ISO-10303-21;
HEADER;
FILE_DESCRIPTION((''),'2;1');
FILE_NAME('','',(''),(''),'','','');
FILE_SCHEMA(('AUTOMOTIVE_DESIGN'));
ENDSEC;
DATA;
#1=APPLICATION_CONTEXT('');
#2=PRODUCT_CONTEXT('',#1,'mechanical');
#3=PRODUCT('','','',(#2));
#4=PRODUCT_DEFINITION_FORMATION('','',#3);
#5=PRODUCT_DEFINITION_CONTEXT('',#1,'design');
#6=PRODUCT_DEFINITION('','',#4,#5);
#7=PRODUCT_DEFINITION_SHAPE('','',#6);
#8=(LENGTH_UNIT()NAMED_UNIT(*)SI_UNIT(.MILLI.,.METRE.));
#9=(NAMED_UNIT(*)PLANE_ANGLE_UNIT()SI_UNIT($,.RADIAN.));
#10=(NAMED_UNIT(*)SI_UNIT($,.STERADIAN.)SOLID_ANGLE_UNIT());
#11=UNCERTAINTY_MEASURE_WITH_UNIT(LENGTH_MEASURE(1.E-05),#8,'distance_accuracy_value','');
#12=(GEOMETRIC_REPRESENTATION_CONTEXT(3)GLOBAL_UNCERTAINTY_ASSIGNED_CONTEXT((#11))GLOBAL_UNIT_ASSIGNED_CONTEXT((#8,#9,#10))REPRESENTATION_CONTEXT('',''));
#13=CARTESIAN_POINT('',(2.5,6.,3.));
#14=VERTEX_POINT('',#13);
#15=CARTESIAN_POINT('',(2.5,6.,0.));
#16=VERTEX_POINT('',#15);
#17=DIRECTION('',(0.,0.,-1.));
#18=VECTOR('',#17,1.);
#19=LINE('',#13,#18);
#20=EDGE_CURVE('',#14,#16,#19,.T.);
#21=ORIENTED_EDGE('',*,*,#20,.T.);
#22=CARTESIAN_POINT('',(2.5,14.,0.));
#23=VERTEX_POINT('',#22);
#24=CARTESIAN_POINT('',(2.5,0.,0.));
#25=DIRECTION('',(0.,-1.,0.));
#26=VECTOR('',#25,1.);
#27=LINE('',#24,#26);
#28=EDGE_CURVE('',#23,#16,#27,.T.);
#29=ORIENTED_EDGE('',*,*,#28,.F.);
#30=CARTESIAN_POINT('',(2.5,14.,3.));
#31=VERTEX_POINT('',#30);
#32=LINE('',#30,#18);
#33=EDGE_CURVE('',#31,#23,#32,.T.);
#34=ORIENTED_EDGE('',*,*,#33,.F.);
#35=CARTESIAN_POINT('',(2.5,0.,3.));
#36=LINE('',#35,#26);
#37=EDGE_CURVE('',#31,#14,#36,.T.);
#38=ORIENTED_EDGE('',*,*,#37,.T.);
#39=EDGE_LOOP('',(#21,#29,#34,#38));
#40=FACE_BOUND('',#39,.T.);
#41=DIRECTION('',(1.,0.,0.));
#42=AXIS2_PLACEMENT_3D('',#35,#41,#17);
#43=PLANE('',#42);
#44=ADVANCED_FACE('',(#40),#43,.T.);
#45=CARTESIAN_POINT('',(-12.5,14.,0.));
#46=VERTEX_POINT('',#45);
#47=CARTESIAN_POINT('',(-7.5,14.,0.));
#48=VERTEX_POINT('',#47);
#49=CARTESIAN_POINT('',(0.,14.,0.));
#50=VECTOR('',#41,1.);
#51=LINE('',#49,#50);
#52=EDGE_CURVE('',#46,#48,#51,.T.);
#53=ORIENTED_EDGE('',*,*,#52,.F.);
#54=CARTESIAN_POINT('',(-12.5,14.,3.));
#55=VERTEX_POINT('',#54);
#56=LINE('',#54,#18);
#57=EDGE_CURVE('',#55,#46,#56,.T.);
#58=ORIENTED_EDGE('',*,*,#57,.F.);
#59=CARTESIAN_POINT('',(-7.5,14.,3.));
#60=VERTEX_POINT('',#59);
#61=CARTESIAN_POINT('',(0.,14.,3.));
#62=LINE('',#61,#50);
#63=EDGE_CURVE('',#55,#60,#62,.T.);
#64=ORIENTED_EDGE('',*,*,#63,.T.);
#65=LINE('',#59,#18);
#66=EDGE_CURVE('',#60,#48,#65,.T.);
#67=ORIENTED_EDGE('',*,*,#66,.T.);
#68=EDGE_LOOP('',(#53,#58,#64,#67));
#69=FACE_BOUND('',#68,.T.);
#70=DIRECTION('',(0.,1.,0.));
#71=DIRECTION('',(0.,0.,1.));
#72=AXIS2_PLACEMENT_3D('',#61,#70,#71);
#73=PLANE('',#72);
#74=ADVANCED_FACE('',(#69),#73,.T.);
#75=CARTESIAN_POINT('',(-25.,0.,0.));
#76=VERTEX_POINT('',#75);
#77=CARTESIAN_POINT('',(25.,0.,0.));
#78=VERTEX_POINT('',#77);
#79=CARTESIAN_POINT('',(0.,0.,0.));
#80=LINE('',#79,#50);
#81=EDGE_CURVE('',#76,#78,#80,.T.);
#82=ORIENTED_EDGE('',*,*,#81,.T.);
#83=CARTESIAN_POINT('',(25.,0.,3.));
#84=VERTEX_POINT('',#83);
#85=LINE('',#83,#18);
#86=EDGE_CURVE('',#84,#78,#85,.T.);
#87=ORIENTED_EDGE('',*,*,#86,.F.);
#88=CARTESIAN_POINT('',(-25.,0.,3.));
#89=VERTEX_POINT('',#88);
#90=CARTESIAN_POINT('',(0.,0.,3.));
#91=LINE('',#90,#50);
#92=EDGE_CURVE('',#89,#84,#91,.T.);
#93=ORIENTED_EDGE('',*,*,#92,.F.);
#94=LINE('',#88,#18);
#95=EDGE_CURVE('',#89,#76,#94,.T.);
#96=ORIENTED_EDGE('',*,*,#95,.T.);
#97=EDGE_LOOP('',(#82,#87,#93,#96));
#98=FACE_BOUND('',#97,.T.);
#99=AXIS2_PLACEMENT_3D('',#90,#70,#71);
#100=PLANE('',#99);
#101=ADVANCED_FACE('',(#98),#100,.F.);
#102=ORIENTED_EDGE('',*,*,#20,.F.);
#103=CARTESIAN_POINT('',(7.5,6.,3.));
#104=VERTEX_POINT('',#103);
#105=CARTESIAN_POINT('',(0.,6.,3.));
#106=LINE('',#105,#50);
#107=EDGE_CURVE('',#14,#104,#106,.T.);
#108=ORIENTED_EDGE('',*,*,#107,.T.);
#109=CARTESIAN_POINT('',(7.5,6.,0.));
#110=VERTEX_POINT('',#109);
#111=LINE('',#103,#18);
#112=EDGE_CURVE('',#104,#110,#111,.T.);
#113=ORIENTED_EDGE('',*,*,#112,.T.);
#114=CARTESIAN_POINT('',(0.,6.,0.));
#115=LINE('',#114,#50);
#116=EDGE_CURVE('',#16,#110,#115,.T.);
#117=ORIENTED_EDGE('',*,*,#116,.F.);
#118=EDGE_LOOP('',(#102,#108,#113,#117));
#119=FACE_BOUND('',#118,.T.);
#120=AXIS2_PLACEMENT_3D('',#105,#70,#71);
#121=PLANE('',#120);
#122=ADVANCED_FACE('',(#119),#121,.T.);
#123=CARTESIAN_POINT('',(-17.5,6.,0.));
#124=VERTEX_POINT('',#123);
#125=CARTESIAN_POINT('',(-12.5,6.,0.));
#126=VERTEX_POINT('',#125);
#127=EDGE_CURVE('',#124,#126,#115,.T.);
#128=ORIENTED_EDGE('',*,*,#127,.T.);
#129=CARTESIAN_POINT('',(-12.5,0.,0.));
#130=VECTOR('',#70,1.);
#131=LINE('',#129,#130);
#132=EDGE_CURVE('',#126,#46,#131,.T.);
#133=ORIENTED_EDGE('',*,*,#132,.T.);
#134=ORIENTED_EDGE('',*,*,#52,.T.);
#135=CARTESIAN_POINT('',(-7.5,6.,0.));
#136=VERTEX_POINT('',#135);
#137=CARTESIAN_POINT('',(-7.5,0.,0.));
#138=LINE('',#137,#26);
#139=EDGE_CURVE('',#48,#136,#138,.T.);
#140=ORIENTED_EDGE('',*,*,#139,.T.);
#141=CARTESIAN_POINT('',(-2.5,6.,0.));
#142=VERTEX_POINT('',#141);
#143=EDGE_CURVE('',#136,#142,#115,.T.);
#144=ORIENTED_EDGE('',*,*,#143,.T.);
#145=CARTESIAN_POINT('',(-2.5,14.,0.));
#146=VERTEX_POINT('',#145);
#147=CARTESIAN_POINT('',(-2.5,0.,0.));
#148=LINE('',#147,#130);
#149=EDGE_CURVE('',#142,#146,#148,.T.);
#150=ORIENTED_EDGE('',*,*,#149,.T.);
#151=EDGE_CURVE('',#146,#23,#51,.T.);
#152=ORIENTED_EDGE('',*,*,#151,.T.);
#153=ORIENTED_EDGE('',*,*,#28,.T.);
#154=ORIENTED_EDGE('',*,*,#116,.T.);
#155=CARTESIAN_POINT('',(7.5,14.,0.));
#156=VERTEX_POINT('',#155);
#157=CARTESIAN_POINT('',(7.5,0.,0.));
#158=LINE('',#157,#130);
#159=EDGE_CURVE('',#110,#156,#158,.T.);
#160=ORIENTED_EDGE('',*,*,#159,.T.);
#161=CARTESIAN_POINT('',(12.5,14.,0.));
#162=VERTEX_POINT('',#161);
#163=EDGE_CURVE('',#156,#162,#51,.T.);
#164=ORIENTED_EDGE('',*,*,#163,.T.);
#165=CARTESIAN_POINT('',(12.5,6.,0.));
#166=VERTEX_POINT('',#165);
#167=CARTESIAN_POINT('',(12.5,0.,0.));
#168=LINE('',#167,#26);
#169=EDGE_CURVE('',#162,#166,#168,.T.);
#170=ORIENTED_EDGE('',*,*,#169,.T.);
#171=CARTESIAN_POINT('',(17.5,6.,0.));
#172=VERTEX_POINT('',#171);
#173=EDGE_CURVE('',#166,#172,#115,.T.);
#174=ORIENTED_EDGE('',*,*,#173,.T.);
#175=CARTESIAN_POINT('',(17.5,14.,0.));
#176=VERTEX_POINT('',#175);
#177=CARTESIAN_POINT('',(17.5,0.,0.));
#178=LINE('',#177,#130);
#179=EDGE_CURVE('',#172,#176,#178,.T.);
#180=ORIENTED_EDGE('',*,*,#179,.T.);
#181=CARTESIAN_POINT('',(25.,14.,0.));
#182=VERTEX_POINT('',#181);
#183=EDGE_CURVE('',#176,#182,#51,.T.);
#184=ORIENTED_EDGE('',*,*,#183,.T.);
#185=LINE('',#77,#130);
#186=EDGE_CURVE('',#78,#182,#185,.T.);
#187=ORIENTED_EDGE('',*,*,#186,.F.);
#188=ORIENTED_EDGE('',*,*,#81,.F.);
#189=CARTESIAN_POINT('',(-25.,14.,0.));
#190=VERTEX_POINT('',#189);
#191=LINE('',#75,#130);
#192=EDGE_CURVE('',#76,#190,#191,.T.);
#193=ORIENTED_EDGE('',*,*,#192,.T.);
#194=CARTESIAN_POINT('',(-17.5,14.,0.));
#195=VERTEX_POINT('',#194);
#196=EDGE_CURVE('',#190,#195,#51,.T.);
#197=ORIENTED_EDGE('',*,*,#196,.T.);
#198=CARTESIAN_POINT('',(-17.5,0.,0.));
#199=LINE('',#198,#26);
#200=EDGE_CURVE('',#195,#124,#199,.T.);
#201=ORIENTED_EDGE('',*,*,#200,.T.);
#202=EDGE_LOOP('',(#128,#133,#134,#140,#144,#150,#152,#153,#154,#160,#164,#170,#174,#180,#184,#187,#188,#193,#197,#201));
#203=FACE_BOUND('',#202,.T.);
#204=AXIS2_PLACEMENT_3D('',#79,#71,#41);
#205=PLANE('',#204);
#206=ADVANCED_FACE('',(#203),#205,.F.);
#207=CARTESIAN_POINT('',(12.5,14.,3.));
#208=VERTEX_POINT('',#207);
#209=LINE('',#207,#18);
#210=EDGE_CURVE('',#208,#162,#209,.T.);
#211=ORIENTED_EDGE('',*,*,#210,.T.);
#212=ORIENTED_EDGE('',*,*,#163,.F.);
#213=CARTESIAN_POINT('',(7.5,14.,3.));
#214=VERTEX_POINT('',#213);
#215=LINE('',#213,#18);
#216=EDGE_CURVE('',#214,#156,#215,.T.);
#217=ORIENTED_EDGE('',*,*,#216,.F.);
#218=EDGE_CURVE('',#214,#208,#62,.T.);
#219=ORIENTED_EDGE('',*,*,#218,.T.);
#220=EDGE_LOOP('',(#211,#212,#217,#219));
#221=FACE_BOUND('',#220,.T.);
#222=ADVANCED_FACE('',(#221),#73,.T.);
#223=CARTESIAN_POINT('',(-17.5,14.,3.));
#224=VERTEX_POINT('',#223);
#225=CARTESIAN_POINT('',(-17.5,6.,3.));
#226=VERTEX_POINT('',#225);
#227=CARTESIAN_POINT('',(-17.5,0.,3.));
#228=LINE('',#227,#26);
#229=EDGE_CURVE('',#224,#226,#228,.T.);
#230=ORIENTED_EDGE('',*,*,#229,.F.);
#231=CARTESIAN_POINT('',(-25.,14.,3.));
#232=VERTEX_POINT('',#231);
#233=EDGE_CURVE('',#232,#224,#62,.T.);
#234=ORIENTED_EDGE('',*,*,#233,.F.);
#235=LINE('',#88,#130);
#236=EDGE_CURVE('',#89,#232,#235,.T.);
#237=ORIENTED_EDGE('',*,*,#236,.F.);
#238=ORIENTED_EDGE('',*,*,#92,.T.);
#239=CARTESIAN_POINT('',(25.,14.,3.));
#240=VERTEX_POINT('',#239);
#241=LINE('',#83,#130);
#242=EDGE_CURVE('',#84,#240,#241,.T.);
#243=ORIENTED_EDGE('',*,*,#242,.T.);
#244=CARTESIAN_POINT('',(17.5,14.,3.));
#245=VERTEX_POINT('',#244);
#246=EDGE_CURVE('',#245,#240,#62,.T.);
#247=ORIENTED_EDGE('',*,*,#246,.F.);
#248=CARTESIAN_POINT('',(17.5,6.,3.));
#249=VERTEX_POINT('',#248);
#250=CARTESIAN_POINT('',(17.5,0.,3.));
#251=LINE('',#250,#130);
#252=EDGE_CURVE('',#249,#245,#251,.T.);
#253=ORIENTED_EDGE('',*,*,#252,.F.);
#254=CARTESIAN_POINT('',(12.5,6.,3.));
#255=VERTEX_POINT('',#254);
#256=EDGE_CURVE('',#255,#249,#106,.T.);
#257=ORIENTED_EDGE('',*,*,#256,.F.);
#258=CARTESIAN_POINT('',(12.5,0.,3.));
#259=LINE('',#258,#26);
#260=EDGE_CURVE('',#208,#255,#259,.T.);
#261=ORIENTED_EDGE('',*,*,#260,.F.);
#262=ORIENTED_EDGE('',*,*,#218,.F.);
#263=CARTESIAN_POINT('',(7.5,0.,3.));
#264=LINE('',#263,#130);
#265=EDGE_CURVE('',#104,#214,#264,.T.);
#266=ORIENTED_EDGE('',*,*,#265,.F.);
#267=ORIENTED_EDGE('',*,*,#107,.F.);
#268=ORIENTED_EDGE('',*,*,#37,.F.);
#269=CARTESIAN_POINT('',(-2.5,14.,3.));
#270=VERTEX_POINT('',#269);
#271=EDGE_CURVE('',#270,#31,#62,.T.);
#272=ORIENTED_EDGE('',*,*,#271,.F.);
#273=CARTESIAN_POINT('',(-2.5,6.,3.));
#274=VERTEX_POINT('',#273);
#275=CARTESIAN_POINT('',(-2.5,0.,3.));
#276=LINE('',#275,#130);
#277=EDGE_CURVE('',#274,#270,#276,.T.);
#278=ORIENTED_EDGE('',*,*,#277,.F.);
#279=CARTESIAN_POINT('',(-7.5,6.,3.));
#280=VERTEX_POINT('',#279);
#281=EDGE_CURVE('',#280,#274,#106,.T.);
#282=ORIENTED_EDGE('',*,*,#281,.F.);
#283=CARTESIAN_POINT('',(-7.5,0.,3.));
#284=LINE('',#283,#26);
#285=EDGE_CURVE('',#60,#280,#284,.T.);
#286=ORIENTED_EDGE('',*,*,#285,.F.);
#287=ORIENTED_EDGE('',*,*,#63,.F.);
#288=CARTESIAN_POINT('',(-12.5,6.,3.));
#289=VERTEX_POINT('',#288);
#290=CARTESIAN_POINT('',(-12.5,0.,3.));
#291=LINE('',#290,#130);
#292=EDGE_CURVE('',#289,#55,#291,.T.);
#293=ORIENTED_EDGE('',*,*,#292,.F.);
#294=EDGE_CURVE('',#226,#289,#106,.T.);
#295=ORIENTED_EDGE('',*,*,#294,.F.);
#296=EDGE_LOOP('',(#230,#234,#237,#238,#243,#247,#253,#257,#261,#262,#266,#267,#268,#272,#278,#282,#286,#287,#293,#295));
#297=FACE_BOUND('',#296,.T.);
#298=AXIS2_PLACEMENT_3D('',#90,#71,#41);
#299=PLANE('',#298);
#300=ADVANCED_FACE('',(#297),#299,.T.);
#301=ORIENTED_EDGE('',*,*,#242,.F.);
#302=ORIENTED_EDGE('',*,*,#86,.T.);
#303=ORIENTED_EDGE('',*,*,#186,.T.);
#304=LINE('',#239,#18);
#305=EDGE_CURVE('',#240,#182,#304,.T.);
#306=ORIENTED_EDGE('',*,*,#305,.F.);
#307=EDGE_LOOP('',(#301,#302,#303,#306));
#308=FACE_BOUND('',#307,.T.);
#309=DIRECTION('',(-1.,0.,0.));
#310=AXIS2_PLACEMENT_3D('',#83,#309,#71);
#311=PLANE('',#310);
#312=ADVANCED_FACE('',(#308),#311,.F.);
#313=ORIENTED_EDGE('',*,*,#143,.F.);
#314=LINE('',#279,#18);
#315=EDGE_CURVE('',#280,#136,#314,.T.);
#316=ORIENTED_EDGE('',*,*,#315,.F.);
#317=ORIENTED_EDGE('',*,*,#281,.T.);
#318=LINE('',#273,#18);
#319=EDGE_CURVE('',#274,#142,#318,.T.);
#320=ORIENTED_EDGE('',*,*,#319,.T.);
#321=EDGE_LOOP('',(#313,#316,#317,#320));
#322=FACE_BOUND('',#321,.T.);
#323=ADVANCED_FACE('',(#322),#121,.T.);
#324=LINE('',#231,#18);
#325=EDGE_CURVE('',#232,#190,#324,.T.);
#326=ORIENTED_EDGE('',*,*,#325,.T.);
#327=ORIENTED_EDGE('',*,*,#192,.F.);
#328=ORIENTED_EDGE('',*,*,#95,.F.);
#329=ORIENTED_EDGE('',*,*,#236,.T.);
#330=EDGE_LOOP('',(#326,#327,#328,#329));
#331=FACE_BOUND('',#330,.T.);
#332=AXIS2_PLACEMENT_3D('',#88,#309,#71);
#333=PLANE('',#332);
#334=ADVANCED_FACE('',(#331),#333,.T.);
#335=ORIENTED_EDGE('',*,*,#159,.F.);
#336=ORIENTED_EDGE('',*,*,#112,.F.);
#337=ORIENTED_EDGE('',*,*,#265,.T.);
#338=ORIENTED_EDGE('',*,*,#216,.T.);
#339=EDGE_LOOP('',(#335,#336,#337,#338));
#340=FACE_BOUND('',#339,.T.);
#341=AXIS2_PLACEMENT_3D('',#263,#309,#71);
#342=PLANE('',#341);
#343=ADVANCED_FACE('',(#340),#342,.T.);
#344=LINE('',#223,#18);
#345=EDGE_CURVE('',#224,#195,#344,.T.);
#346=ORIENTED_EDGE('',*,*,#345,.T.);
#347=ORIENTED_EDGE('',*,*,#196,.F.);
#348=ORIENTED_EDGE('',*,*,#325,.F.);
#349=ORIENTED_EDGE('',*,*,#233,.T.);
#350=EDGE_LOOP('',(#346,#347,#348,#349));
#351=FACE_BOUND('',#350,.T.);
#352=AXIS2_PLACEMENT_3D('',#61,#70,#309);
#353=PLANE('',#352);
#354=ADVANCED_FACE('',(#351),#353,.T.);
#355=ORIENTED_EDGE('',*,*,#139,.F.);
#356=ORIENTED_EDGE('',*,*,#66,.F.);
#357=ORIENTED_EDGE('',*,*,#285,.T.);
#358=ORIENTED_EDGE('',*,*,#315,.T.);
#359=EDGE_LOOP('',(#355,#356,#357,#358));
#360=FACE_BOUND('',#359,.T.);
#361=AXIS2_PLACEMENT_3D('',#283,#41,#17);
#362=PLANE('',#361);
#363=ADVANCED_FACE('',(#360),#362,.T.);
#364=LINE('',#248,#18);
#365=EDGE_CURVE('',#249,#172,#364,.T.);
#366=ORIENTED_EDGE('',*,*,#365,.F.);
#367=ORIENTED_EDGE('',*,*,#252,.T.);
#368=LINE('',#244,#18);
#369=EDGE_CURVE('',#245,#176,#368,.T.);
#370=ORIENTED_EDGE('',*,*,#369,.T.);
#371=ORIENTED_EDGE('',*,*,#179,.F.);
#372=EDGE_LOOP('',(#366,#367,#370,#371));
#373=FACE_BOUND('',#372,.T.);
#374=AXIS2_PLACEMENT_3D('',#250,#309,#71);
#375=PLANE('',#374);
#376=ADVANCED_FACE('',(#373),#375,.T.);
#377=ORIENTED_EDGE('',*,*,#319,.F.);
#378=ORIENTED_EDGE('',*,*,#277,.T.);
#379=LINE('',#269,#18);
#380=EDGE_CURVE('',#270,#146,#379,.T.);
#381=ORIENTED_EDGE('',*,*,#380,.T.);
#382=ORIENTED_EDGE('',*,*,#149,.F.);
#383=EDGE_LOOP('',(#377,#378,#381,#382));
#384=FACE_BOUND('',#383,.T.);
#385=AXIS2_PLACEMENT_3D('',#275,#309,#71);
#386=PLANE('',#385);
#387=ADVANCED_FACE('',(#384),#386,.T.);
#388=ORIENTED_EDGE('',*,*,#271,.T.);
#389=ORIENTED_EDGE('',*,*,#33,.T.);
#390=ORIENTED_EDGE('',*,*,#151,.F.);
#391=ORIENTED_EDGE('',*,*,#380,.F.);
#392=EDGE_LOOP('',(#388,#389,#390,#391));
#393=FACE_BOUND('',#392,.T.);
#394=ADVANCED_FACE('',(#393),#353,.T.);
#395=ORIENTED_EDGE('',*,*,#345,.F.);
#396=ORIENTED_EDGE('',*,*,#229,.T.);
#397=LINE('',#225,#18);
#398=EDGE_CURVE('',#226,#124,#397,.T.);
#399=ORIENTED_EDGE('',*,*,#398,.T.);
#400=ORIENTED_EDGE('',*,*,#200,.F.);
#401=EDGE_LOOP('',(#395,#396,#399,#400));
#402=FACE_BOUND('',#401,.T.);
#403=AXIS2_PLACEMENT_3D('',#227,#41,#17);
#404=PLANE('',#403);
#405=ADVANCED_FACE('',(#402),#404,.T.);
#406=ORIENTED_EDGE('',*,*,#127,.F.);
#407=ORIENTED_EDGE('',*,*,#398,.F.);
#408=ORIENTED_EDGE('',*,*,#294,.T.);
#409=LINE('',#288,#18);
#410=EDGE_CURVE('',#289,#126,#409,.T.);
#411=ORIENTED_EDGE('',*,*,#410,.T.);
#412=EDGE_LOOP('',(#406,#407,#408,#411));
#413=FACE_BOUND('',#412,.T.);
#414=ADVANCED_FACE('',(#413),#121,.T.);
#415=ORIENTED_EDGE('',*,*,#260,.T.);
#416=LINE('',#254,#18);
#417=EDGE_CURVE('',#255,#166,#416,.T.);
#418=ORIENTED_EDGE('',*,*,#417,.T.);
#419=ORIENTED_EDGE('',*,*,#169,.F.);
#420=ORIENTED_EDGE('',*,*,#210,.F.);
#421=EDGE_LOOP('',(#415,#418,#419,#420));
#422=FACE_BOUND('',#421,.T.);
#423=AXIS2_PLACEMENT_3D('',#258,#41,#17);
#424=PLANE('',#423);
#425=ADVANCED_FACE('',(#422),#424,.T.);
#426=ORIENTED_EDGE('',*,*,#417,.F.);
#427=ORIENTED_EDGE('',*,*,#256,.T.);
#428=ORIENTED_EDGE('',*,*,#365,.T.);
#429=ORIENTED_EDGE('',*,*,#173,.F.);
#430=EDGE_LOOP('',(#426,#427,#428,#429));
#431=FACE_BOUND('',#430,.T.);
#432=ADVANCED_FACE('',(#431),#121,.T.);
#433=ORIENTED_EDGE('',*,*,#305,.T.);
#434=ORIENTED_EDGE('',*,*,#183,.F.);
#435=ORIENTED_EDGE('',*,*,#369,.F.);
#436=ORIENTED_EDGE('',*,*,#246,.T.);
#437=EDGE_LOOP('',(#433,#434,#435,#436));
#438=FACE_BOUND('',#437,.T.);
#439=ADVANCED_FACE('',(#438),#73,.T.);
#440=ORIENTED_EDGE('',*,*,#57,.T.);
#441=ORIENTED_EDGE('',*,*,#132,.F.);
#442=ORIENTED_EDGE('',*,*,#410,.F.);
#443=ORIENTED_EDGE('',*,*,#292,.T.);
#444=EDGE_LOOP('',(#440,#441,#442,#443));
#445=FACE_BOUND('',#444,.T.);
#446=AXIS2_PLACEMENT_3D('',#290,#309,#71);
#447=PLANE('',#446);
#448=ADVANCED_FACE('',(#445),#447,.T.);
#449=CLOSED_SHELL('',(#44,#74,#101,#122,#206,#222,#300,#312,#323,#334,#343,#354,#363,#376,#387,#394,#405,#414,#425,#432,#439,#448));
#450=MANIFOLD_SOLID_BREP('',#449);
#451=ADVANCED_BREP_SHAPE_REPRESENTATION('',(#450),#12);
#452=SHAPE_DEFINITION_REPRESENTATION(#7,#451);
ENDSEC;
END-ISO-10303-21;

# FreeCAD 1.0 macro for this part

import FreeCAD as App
import Part
import Sketcher


def add_polygon(sketch, points):
    """Adds a closed chain of lines whose ends are joined by coincident constraints."""
    first, n = sketch.GeometryCount, len(points)
    for a, b in zip(points, points[1:] + points[:1]):
        sketch.addGeometry(Part.LineSegment(App.Vector(*a, 0), App.Vector(*b, 0)), False)
    for i in range(n):
        sketch.addConstraint(Sketcher.Constraint("Coincident", first + i, 2, first + (i + 1) % n, 1))

doc = App.newDocument("Part")
body = doc.addObject("PartDesign::Body", "Body")

# Sketch on XY plane
sketch1 = body.newObject("Sketcher::SketchObject", "Sketch")
sketch1.AttachmentSupport = (doc.getObject("XY_Plane"), [""])
sketch1.MapMode = "FlatFace"
add_polygon(sketch1, [(25, 14), (18, 14), (18, 6), (12, 6), (12, 14), (8, 14), (8, 6), (2, 6), (2, 14), (-2, 14), (-2, 6), (-8, 6), (-8, 14), (-12, 14), (-12, 6), (-18, 6), (-18, 14), (-25, 14), (-25, 0), (25, 0)])  # lines 0-19
sketch1.addConstraint([
    Sketcher.Constraint("Horizontal", 0),
    Sketcher.Constraint("Vertical", 1),
    Sketcher.Constraint("Horizontal", 2),
    Sketcher.Constraint("Vertical", 3),
    Sketcher.Constraint("Horizontal", 4),
    Sketcher.Constraint("Vertical", 5),
    Sketcher.Constraint("Horizontal", 6),
    Sketcher.Constraint("Vertical", 7),
    Sketcher.Constraint("Horizontal", 8),
    Sketcher.Constraint("Vertical", 9),
    Sketcher.Constraint("Horizontal", 10),
    Sketcher.Constraint("Vertical", 11),
    Sketcher.Constraint("Horizontal", 12),
    Sketcher.Constraint("Vertical", 13),
    Sketcher.Constraint("Horizontal", 14),
    Sketcher.Constraint("Vertical", 15),
    Sketcher.Constraint("Horizontal", 16),
    Sketcher.Constraint("Vertical", 17),
    Sketcher.Constraint("Horizontal", 18),
    Sketcher.Constraint("Vertical", 19),
    Sketcher.Constraint("Symmetric", 17, 2, 18, 2, -1, 1),
    Sketcher.Constraint("Symmetric", 6, 2, 9, 2, -2),
    Sketcher.Constraint("Symmetric", 4, 2, 11, 2, -2),
    Sketcher.Constraint("Symmetric", 2, 2, 13, 2, -2),
    Sketcher.Constraint("Symmetric", 0, 2, 15, 2, -2),
    Sketcher.Constraint("Horizontal", 0, 2, 3, 2),
    Sketcher.Constraint("Horizontal", 2, 2, 5, 2),
    Sketcher.Constraint("Horizontal", 4, 2, 7, 2),
    Sketcher.Constraint("Equal", 2, 4),
    Sketcher.Constraint("Equal", 4, 6),
    Sketcher.Constraint("Equal", 6, 8),
    Sketcher.Constraint("DistanceX", 2, 2, 2, 1, 5.0),
    Sketcher.Constraint("DistanceX", 18, 1, 18, 2, 50.0),
    Sketcher.Constraint("DistanceY", 1, 2, 1, 1, 8.0),
    Sketcher.Constraint("DistanceY", 17, 2, 17, 1, 14.0),
])
pad1 = body.newObject("PartDesign::Pad", "Pad")
pad1.Profile = sketch1
pad1.Length = 3

doc.recompute()
